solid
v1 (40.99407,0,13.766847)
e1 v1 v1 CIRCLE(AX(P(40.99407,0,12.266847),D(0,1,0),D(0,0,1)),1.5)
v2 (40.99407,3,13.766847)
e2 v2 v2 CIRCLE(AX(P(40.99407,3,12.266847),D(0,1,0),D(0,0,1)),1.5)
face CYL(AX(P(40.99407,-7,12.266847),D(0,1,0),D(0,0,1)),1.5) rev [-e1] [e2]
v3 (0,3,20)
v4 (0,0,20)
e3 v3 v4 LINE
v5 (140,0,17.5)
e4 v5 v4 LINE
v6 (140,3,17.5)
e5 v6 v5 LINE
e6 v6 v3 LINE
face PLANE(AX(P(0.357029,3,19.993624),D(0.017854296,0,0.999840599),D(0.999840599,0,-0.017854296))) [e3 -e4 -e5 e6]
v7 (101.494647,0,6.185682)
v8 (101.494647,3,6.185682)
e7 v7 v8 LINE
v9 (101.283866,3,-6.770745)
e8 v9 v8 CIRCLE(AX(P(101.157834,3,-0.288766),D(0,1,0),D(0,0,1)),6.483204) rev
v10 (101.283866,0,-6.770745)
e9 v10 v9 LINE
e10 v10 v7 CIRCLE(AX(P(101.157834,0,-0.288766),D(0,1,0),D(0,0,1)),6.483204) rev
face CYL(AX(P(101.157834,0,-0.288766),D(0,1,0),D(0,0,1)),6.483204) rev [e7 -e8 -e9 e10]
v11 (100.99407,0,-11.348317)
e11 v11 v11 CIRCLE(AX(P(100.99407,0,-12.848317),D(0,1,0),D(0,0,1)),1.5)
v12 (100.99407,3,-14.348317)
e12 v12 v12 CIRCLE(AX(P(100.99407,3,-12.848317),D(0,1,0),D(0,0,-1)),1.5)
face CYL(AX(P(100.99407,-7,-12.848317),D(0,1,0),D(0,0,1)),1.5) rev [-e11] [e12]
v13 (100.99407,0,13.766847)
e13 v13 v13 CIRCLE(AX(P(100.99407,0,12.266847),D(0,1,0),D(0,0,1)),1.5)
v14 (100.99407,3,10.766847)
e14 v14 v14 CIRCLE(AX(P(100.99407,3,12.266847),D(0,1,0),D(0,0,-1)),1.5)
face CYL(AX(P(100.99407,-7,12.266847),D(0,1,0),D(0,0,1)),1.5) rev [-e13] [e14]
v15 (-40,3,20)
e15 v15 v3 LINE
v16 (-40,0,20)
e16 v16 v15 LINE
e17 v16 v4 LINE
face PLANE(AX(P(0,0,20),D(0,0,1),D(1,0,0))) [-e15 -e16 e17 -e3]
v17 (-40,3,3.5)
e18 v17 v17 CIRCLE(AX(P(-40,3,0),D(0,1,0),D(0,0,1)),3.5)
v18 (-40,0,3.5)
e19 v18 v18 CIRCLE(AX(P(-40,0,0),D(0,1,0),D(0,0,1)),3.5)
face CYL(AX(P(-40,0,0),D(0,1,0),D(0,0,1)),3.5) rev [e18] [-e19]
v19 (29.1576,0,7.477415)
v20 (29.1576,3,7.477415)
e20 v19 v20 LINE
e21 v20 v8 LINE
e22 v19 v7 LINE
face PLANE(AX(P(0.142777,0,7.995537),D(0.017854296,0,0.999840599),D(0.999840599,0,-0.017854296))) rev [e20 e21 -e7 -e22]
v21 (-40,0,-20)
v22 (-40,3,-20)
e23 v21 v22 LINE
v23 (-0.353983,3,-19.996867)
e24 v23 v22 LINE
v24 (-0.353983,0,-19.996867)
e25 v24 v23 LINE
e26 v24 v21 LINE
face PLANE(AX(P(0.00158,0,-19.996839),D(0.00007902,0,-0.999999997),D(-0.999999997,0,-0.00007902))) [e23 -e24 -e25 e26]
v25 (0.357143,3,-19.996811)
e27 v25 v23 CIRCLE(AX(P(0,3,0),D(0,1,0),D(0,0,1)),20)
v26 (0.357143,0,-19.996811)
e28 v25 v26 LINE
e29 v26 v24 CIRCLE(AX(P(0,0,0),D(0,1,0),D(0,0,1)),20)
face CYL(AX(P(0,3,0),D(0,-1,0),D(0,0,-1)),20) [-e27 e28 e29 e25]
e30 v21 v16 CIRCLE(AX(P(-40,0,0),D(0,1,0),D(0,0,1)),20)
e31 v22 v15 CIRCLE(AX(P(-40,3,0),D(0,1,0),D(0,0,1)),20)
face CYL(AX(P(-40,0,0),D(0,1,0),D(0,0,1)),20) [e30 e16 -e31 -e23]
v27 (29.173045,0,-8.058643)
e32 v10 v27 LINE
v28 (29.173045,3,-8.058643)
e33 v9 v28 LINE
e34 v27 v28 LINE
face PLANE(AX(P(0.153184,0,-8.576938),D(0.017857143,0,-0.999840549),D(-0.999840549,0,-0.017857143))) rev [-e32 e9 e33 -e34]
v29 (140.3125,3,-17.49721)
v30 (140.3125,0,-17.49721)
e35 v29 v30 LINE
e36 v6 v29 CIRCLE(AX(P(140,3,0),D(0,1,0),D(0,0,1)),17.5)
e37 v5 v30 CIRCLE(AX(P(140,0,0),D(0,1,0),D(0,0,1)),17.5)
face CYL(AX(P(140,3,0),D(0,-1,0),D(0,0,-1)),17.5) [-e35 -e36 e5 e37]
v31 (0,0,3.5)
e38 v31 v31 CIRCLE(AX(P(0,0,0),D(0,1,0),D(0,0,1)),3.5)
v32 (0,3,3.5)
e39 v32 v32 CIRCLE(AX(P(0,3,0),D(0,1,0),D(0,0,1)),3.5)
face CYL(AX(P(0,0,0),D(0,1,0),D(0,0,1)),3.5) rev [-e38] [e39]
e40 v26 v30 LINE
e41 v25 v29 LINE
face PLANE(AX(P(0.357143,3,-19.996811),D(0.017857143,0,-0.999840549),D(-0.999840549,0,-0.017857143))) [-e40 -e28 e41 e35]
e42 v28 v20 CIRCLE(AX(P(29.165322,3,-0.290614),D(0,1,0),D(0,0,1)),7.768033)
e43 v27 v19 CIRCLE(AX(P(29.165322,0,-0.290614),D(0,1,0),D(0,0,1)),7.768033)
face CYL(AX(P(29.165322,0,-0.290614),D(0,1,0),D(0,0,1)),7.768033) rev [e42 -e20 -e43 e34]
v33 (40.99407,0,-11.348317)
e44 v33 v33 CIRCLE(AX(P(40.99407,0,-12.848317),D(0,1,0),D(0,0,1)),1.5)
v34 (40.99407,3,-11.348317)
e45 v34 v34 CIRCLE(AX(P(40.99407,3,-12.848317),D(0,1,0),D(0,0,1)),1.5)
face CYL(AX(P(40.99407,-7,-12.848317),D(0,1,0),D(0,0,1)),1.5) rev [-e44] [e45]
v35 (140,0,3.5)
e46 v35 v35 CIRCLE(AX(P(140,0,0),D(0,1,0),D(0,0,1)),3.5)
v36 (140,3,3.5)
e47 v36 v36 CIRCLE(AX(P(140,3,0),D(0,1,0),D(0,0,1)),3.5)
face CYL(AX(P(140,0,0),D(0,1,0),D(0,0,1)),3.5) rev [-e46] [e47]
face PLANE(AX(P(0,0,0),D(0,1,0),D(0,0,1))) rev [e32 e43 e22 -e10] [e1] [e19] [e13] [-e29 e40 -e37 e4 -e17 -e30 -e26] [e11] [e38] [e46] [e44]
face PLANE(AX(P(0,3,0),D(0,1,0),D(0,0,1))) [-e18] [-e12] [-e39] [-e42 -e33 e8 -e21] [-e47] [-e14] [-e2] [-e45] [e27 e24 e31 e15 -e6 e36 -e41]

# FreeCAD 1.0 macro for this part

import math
import FreeCAD as App
import Part
import Sketcher

V = App.Vector
Q = App.Units.Quantity

doc = App.newDocument("Part")
params = doc.addObject("Spreadsheet::Sheet", "Params")
for row, (alias, value) in enumerate([
    ("sketch1_radius", "20 mm"),
    ("sketch1_radius2", "17.5 mm"),
    ("pad1_length", "3 mm"),
    ("sketch2_diameter", "7 mm"),
    ("sketch4_diameter", "7 mm"),
    ("sketch4_radius", "20 mm"),
    ("sketch4_width", "40 mm"),
    ("pad2_length", "3 mm"),
    ("sketch5_diameter", "3 mm"),
    ("pocket3_length", "10 mm"),
], start=1):
    params.set(f"A{row}", alias)
    params.set(f"B{row}", "=" + value)
    params.setAlias(f"B{row}", alias)

body = doc.addObject("PartDesign::Body", "Body")

# Sketch on XZ plane
sketch1 = doc.addObject("Sketcher::SketchObject", "Sketch")
body.addObject(sketch1)
sketch1.AttachmentSupport = (doc.XZ_Plane, [""])
sketch1.MapMode = "FlatFace"
sketch1.addGeometry(Part.LineSegment(V(140.3125, -17.49721, 0), V(0.357143, -19.996811, 0)), False)
sketch1.addGeometry(Part.ArcOfCircle(Part.Circle(V(0, 0, 0), V(0, 0, 1), 20), math.radians(90), math.radians(271.023193)), False)
sketch1.addGeometry(Part.LineSegment(V(0, 20, 0), V(140, 17.5, 0)), False)
sketch1.addGeometry(Part.ArcOfCircle(Part.Circle(V(140, 0, 0), V(0, 0, 1), 17.5), math.radians(-88.976807), math.radians(90)), False)
sketch1.addConstraint(Sketcher.Constraint("Tangent", 0, 2, 1, 2))
sketch1.addConstraint(Sketcher.Constraint("Coincident", 1, 1, 2, 1))
sketch1.addConstraint(Sketcher.Constraint("Coincident", 2, 2, 3, 2))
sketch1.addConstraint(Sketcher.Constraint("Tangent", 3, 1, 0, 1))
sketch1.addConstraint(Sketcher.Constraint("Coincident", 1, 3, -1, 1))
sketch1.addConstraint(Sketcher.Constraint("PointOnObject", 3, 3, -1))
sketch1.addConstraint(Sketcher.Constraint("PointOnObject", 1, 1, -2))
sketch1.addConstraint(Sketcher.Constraint("Vertical", 3, 3, 2, 2))
sketch1.addConstraint(Sketcher.Constraint("Radius", 1, Q("20 mm")))
sketch1.addConstraint(Sketcher.Constraint("Radius", 3, Q("17.5 mm")))
sketch1.addConstraint(Sketcher.Constraint("DistanceX", -1, 1, 3, 3, Q("140 mm")))
sketch1.setExpression("Constraints[8]", "Params.sketch1_radius")
sketch1.setExpression("Constraints[9]", "Params.sketch1_radius2")
pad1 = doc.addObject("PartDesign::Pad", "Pad")
body.addObject(pad1)
pad1.Profile = sketch1
pad1.setExpression("Length", "Params.pad1_length")
pad1.Reversed = True

# Sketch on XZ plane
sketch2 = doc.addObject("Sketcher::SketchObject", "Sketch001")
body.addObject(sketch2)
sketch2.AttachmentSupport = (doc.XZ_Plane, [""])
sketch2.MapMode = "FlatFace"
sketch2.AttachmentOffset = App.Placement(V(0, 0, -3), App.Rotation())
sketch2.addGeometry(Part.Circle(V(0, 0, 0), V(0, 0, 1), 3.5), False)
sketch2.addGeometry(Part.Circle(V(140, 0, 0), V(0, 0, 1), 3.5), False)
sketch2.addConstraint(Sketcher.Constraint("Coincident", 0, 3, -1, 1))
sketch2.addConstraint(Sketcher.Constraint("Equal", 0, 1))
sketch2.addConstraint(Sketcher.Constraint("PointOnObject", 1, 3, -1))
sketch2.addConstraint(Sketcher.Constraint("Diameter", 0, Q("7 mm")))
sketch2.addConstraint(Sketcher.Constraint("DistanceX", -1, 1, 1, 3, Q("140 mm")))
sketch2.setExpression("Constraints[3]", "Params.sketch2_diameter")
pocket1 = doc.addObject("PartDesign::Pocket", "Pocket")
body.addObject(pocket1)
pocket1.Profile = sketch2
pocket1.Type = "ThroughAll"
pocket1.Reversed = True

# Sketch on XZ plane
sketch3 = doc.addObject("Sketcher::SketchObject", "Sketch002")
body.addObject(sketch3)
sketch3.AttachmentSupport = (doc.XZ_Plane, [""])
sketch3.MapMode = "FlatFace"
sketch3.AttachmentOffset = App.Placement(V(0, 0, -3), App.Rotation())
sketch3.addGeometry(Part.ArcOfCircle(Part.Circle(V(101.157834, -0.288766, 0), V(0, 0, 1), 6.483204), math.radians(-88.886115), math.radians(87.022047)), False)
sketch3.addGeometry(Part.LineSegment(V(101.283866, -6.770745, 0), V(29.173045, -8.058643, 0)), False)
sketch3.addGeometry(Part.ArcOfCircle(Part.Circle(V(29.165322, -0.290614, 0), V(0, 0, 1), 7.768033), math.radians(90.05696), math.radians(270.05696)), False)
sketch3.addGeometry(Part.LineSegment(V(29.1576, 7.477415, 0), V(101.052392, 6.19358, 0)), False)
sketch3.addGeometry(Part.LineSegment(V(101.052392, 6.19358, 0), V(101.494647, 6.185682, 0)), False)
sketch3.addConstraint(Sketcher.Constraint("Coincident", 0, 1, 1, 1))
sketch3.addConstraint(Sketcher.Constraint("Coincident", 1, 2, 2, 2))
sketch3.addConstraint(Sketcher.Constraint("Coincident", 2, 1, 3, 1))
sketch3.addConstraint(Sketcher.Constraint("Coincident", 3, 2, 4, 1))
sketch3.addConstraint(Sketcher.Constraint("Coincident", 4, 2, 0, 2))
sketch3.addConstraint(Sketcher.Constraint("Parallel", 3, 4))
sketch3.addConstraint(Sketcher.Constraint("Radius", 0, Q("6.483204 mm")))
sketch3.addConstraint(Sketcher.Constraint("Radius", 2, Q("7.768033 mm")))
sketch3.addConstraint(Sketcher.Constraint("DistanceX", -1, 1, 2, 1, Q("29.1576 mm")))
sketch3.addConstraint(Sketcher.Constraint("DistanceY", 1, 2, 0, 1, Q("1.287899 mm")))
sketch3.addConstraint(Sketcher.Constraint("Distance", 1, Q("72.122321 mm")))
sketch3.addConstraint(Sketcher.Constraint("DistanceY", -1, 1, 3, 2, Q("6.19358 mm")))
sketch3.addConstraint(Sketcher.Constraint("DistanceX", 2, 3, 0, 3, Q("71.992512 mm")))
sketch3.addConstraint(Sketcher.Constraint("DistanceX", 0, 3, 0, 1, Q("0.126032 mm")))
sketch3.addConstraint(Sketcher.Constraint("DistanceX", 3, 2, 0, 3, Q("0.105442 mm")))
sketch3.addConstraint(Sketcher.Constraint("DistanceY", 0, 3, 4, 2, Q("6.474449 mm")))
sketch3.addConstraint(Sketcher.Constraint("Distance", 3, Q("71.906254 mm")))
pocket2 = doc.addObject("PartDesign::Pocket", "Pocket001")
body.addObject(pocket2)
pocket2.Profile = sketch3
pocket2.Type = "ThroughAll"
pocket2.Reversed = True

# Sketch on XZ plane
sketch4 = doc.addObject("Sketcher::SketchObject", "Sketch003")
body.addObject(sketch4)
sketch4.AttachmentSupport = (doc.XZ_Plane, [""])
sketch4.MapMode = "FlatFace"
sketch4.addGeometry(Part.LineSegment(V(-0.353983, -19.996867, 0), V(-39.99842, -20, 0)), False)
sketch4.addGeometry(Part.LineSegment(V(-39.99842, -20, 0), V(-40, -20, 0)), False)
sketch4.addGeometry(Part.ArcOfCircle(Part.Circle(V(-40, 0, 0), V(0, 0, 1), 20), math.radians(90), math.radians(270)), False)
sketch4.addGeometry(Part.LineSegment(V(-40, 20, 0), V(0, 20, 0)), False)
sketch4.addGeometry(Part.ArcOfCircle(Part.Circle(V(0, 0, 0), V(0, 0, 1), 20), math.radians(90), math.radians(268.985862)), False)
sketch4.addGeometry(Part.Circle(V(-40, 0, 0), V(0, 0, 1), 3.5), False)
sketch4.addConstraint(Sketcher.Constraint("Coincident", 0, 2, 1, 1))
sketch4.addConstraint(Sketcher.Constraint("Coincident", 1, 2, 2, 2))
sketch4.addConstraint(Sketcher.Constraint("Tangent", 2, 1, 3, 1))
sketch4.addConstraint(Sketcher.Constraint("Tangent", 3, 2, 4, 1))
sketch4.addConstraint(Sketcher.Constraint("Coincident", 4, 2, 0, 1))
sketch4.addConstraint(Sketcher.Constraint("Horizontal", 1))
sketch4.addConstraint(Sketcher.Constraint("Horizontal", 3))
sketch4.addConstraint(Sketcher.Constraint("Coincident", 4, 3, -1, 1))
sketch4.addConstraint(Sketcher.Constraint("Coincident", 5, 3, 2, 3))
sketch4.addConstraint(Sketcher.Constraint("Equal", 2, 4))
sketch4.addConstraint(Sketcher.Constraint("Vertical", 5, 3, 1, 2))
sketch4.addConstraint(Sketcher.Constraint("Diameter", 5, Q("7 mm")))
sketch4.addConstraint(Sketcher.Constraint("Radius", 2, Q("20 mm")))
sketch4.addConstraint(Sketcher.Constraint("DistanceX", 3, 1, 3, 2, Q("40 mm")))
sketch4.addConstraint(Sketcher.Constraint("DistanceX", 1, 2, 1, 1, Q("0.00158 mm")))
sketch4.addConstraint(Sketcher.Constraint("Distance", 0, Q("39.644437 mm")))
sketch4.setExpression("Constraints[11]", "Params.sketch4_diameter")
sketch4.setExpression("Constraints[12]", "Params.sketch4_radius")
sketch4.setExpression("Constraints[13]", "Params.sketch4_width")
pad2 = doc.addObject("PartDesign::Pad", "Pad001")
body.addObject(pad2)
pad2.Profile = sketch4
pad2.setExpression("Length", "Params.pad2_length")
pad2.Reversed = True

# Sketch on XZ plane
sketch5 = doc.addObject("Sketcher::SketchObject", "Sketch004")
body.addObject(sketch5)
sketch5.AttachmentSupport = (doc.XZ_Plane, [""])
sketch5.MapMode = "FlatFace"
sketch5.AttachmentOffset = App.Placement(V(0, 0, -3), App.Rotation())
sketch5.addGeometry(Part.Circle(V(40.99407, -12.848317, 0), V(0, 0, 1), 1.5), False)
sketch5.addGeometry(Part.Circle(V(40.99407, 12.266847, 0), V(0, 0, 1), 1.5), False)
sketch5.addGeometry(Part.Circle(V(100.99407, 12.266847, 0), V(0, 0, 1), 1.5), False)
sketch5.addGeometry(Part.Circle(V(100.99407, -12.848317, 0), V(0, 0, 1), 1.5), False)
sketch5.addConstraint(Sketcher.Constraint("Equal", 0, 1))
sketch5.addConstraint(Sketcher.Constraint("Equal", 1, 2))
sketch5.addConstraint(Sketcher.Constraint("Equal", 2, 3))
sketch5.addConstraint(Sketcher.Constraint("Horizontal", 1, 3, 2, 3))
sketch5.addConstraint(Sketcher.Constraint("Horizontal", 0, 3, 3, 3))
sketch5.addConstraint(Sketcher.Constraint("Vertical", 0, 3, 1, 3))
sketch5.addConstraint(Sketcher.Constraint("Vertical", 2, 3, 3, 3))
sketch5.addConstraint(Sketcher.Constraint("Diameter", 0, Q("3 mm")))
sketch5.addConstraint(Sketcher.Constraint("DistanceX", 1, 3, 2, 3, Q("60 mm")))
sketch5.addConstraint(Sketcher.Constraint("DistanceX", -1, 1, 0, 3, Q("40.99407 mm")))
sketch5.addConstraint(Sketcher.Constraint("DistanceY", 0, 3, -1, 1, Q("12.848317 mm")))
sketch5.addConstraint(Sketcher.Constraint("DistanceY", -1, 1, 1, 3, Q("12.266847 mm")))
sketch5.setExpression("Constraints[7]", "Params.sketch5_diameter")
pocket3 = doc.addObject("PartDesign::Pocket", "Pocket002")
body.addObject(pocket3)
pocket3.Profile = sketch5
pocket3.setExpression("Length", "Params.pocket3_length")
pocket3.Reversed = True

doc.recompute()
